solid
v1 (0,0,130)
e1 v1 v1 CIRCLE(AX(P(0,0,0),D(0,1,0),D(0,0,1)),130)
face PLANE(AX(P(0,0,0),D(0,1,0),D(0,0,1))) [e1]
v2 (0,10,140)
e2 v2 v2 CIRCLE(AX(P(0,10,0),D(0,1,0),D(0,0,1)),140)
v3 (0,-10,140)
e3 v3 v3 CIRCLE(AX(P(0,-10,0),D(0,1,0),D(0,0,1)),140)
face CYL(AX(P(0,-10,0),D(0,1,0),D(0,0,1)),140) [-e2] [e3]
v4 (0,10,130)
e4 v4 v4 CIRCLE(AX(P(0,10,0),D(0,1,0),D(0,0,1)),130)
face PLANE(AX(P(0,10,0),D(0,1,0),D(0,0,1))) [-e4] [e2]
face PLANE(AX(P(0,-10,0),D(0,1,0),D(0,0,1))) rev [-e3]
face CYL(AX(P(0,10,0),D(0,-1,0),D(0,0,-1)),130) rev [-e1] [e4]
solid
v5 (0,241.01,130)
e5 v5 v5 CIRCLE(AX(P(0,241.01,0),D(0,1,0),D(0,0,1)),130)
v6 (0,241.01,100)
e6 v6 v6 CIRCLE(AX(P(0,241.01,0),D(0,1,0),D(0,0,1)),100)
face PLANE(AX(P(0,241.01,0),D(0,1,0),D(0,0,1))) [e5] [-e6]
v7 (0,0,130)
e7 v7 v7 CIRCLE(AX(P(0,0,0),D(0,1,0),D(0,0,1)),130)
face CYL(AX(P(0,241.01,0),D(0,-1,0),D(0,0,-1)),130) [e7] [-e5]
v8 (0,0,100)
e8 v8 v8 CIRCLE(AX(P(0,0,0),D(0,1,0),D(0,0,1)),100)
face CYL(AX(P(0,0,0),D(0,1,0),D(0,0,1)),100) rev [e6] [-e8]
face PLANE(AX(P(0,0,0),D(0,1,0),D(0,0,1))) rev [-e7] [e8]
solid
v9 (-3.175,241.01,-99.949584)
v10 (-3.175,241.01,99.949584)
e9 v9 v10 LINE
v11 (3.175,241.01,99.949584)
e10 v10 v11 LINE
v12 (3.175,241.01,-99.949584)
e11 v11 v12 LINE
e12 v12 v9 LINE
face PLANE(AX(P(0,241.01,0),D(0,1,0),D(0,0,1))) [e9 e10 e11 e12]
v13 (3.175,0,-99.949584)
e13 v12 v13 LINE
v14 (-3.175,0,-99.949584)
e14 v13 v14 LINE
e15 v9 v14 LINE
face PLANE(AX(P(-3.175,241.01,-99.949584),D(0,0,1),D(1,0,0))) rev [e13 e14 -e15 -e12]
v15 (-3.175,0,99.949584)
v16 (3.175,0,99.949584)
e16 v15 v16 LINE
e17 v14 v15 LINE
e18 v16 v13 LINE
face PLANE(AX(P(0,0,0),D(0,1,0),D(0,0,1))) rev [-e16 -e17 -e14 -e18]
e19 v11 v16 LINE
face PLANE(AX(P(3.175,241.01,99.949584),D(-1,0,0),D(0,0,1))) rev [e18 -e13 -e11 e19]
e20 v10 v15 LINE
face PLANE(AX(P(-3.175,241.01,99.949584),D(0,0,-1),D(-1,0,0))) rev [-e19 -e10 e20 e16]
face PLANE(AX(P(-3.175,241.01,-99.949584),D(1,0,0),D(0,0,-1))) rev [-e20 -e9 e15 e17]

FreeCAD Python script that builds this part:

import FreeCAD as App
import Part
import Sketcher

V = App.Vector
Q = App.Units.Quantity

doc = App.newDocument("Part")
body = doc.addObject("PartDesign::Body", "Body")

sketch1 = body.newObject("Sketcher::SketchObject", "Sketch")
sketch1.AttachmentSupport = (doc.getObject("XZ_Plane"), [""])
sketch1.MapMode = "FlatFace"
sketch1.addGeometry(Part.Circle(V(0, 0, 0), V(0, 0, 1), 130), False)
sketch1.addConstraint([
    Sketcher.Constraint("Coincident", 0, 3, -1, 1),
    Sketcher.Constraint("Diameter", 0, Q("260 mm")),
])
pad1 = body.newObject("PartDesign::Pad", "Pad")
pad1.Profile = sketch1
pad1.Length = 241.01
pad1.Reversed = True

sketch2 = body.newObject("Sketcher::SketchObject", "Sketch001")
sketch2.AttachmentSupport = (doc.getObject("XZ_Plane"), [""])
sketch2.MapMode = "FlatFace"
sketch2.AttachmentOffset = App.Placement(V(0, 0, -241.01), App.Rotation())
sketch2.addGeometry(Part.Circle(V(0, 0, 0), V(0, 0, 1), 100), False)
sketch2.addConstraint([
    Sketcher.Constraint("Coincident", 0, 3, -1, 1),
    Sketcher.Constraint("Diameter", 0, Q("200 mm")),
])
pocket1 = body.newObject("PartDesign::Pocket", "Pocket")
pocket1.Profile = sketch2
pocket1.Type = "ThroughAll"
pocket1.Reversed = True
body2 = doc.addObject("PartDesign::Body", "Body001")

sketch3 = body2.newObject("Sketcher::SketchObject", "Sketch002")
sketch3.AttachmentSupport = (doc.getObject("XZ_Plane001"), [""])
sketch3.MapMode = "FlatFace"
sketch3.addGeometry([
    Part.LineSegment(V(-3, -100, 0), V(-3, 100, 0)),
    Part.LineSegment(V(-3, 100, 0), V(3, 100, 0)),
    Part.LineSegment(V(3, 100, 0), V(3, -100, 0)),
    Part.LineSegment(V(3, -100, 0), V(-3, -100, 0)),
], False)
sketch3.addConstraint([
    Sketcher.Constraint("Coincident", 0, 2, 1, 1),
    Sketcher.Constraint("Coincident", 1, 2, 2, 1),
    Sketcher.Constraint("Coincident", 2, 2, 3, 1),
    Sketcher.Constraint("Coincident", 3, 2, 0, 1),
    Sketcher.Constraint("Vertical", 0),
    Sketcher.Constraint("Horizontal", 1),
    Sketcher.Constraint("Vertical", 2),
    Sketcher.Constraint("Horizontal", 3),
    Sketcher.Constraint("Symmetric", 0, 2, 2, 2, -1, 1),
    Sketcher.Constraint("DistanceX", 1, 1, 1, 2, Q("6.35 mm")),
    Sketcher.Constraint("DistanceY", 0, 1, 0, 2, Q("199.899168 mm")),
])
pad2 = body2.newObject("PartDesign::Pad", "Pad001")
pad2.Profile = sketch3
pad2.Length = 241.01
pad2.Reversed = True
body3 = doc.addObject("PartDesign::Body", "Body002")

sketch4 = body3.newObject("Sketcher::SketchObject", "Sketch003")
sketch4.AttachmentSupport = (doc.getObject("XZ_Plane002"), [""])
sketch4.MapMode = "FlatFace"
sketch4.addGeometry(Part.Circle(V(0, 0, 0), V(0, 0, 1), 140), False)
sketch4.addConstraint([
    Sketcher.Constraint("Coincident", 0, 3, -1, 1),
    Sketcher.Constraint("Diameter", 0, Q("280 mm")),
])
pad3 = body3.newObject("PartDesign::Pad", "Pad002")
pad3.Profile = sketch4
pad3.Length = 10
body4 = doc.addObject("PartDesign::Body", "Body003")

sketch5 = body4.newObject("Sketcher::SketchObject", "Sketch004")
sketch5.AttachmentSupport = (doc.getObject("XZ_Plane003"), [""])
sketch5.MapMode = "FlatFace"
sketch5.addGeometry([
    Part.Circle(V(0, 0, 0), V(0, 0, 1), 140),
    Part.Circle(V(0, 0, 0), V(0, 0, 1), 130),
], False)
sketch5.addConstraint([
    Sketcher.Constraint("Coincident", 0, 3, -1, 1),
    Sketcher.Constraint("Coincident", 1, 3, -1, 1),
    Sketcher.Constraint("Diameter", 0, Q("280 mm")),
    Sketcher.Constraint("Diameter", 1, Q("260 mm")),
])
pad4 = body4.newObject("PartDesign::Pad", "Pad003")
pad4.Profile = sketch5
pad4.Length = 10
pad4.Reversed = True
doc.recompute()

boolean = body3.newObject("PartDesign::Boolean", "Boolean")
boolean.Type = "Fuse"
boolean.addObjects([body4])

doc.recompute()
